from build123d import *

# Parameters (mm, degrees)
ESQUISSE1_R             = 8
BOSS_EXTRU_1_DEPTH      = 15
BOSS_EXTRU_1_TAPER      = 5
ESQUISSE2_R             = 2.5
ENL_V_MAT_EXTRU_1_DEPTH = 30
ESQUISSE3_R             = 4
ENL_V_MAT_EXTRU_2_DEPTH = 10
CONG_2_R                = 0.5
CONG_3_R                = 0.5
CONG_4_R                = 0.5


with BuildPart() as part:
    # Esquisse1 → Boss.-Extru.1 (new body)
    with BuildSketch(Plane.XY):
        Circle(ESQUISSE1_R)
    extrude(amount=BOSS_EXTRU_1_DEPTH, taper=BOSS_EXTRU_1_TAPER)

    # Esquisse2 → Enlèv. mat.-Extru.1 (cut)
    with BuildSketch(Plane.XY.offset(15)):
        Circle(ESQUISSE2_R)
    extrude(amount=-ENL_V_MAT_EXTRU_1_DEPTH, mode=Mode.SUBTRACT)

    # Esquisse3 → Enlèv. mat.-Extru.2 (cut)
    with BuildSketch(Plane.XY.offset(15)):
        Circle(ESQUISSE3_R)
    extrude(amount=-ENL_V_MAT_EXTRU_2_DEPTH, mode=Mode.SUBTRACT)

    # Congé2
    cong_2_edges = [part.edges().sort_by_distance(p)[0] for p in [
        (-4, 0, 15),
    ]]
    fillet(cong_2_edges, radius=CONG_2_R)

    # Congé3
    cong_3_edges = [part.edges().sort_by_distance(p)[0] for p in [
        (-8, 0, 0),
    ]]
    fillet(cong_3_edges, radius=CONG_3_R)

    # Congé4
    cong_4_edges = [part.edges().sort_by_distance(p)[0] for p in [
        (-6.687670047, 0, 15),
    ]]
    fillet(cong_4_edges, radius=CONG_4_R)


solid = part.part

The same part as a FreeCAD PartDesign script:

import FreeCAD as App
import Part
import Sketcher
from FreeCAD import Vector


def edges_at(feature, points):
    """Names of the edges that pass closest to the given points."""
    edges = feature.Shape.Edges
    near = lambda p: min(range(len(edges)), key=lambda i: edges[i].distToShape(Part.Vertex(*p))[0])
    return sorted({f"Edge{near(p) + 1}" for p in points})

doc = App.newDocument("Part")
body = doc.addObject("PartDesign::Body", "Body")

# Sketch on XY plane
sketch1 = body.newObject("Sketcher::SketchObject", "Sketch")
sketch1.AttachmentSupport = (doc.getObject("XY_Plane"), [""])
sketch1.MapMode = "FlatFace"
sketch1.addGeometry(Part.Circle(Vector(0, 0, 0), Vector(0, 0, 1), 8), False)
sketch1.addConstraint(Sketcher.Constraint("Coincident", 0, 3, -1, 1))
sketch1.addConstraint(Sketcher.Constraint("Diameter", 0, 16.0))
pad1 = body.newObject("PartDesign::Pad", "Pad")
pad1.Profile = sketch1
pad1.Length = 15
pad1.TaperAngle = -5

# Sketch on XY plane
sketch2 = body.newObject("Sketcher::SketchObject", "Sketch001")
sketch2.AttachmentSupport = (doc.getObject("XY_Plane"), [""])
sketch2.MapMode = "FlatFace"
sketch2.AttachmentOffset = App.Placement(Vector(0, 0, 15), App.Rotation())
sketch2.addGeometry(Part.Circle(Vector(0, 0, 0), Vector(0, 0, 1), 2.5), False)
sketch2.addConstraint(Sketcher.Constraint("Coincident", 0, 3, -1, 1))
sketch2.addConstraint(Sketcher.Constraint("Diameter", 0, 5.0))
pocket1 = body.newObject("PartDesign::Pocket", "Pocket")
pocket1.Profile = sketch2
pocket1.Length = 30

# Sketch on XY plane
sketch3 = body.newObject("Sketcher::SketchObject", "Sketch002")
sketch3.AttachmentSupport = (doc.getObject("XY_Plane"), [""])
sketch3.MapMode = "FlatFace"
sketch3.AttachmentOffset = App.Placement(Vector(0, 0, 15), App.Rotation())
sketch3.addGeometry(Part.Circle(Vector(0, 0, 0), Vector(0, 0, 1), 4), False)
sketch3.addConstraint(Sketcher.Constraint("Coincident", 0, 3, -1, 1))
sketch3.addConstraint(Sketcher.Constraint("Diameter", 0, 8.0))
pocket2 = body.newObject("PartDesign::Pocket", "Pocket001")
pocket2.Profile = sketch3
pocket2.Length = 10
doc.recompute()

fillet = body.newObject("PartDesign::Fillet", "Fillet")
fillet.Base = (pocket2, edges_at(pocket2, [(-4, 0, 15)]))
fillet.Radius = 0.5
doc.recompute()

fillet2 = body.newObject("PartDesign::Fillet", "Fillet001")
fillet2.Base = (fillet, edges_at(fillet, [(-8, 0, 0)]))
fillet2.Radius = 0.5
doc.recompute()

fillet3 = body.newObject("PartDesign::Fillet", "Fillet002")
fillet3.Base = (fillet2, edges_at(fillet2, [(-6.688, 0, 15)]))
fillet3.Radius = 0.5

doc.recompute()
